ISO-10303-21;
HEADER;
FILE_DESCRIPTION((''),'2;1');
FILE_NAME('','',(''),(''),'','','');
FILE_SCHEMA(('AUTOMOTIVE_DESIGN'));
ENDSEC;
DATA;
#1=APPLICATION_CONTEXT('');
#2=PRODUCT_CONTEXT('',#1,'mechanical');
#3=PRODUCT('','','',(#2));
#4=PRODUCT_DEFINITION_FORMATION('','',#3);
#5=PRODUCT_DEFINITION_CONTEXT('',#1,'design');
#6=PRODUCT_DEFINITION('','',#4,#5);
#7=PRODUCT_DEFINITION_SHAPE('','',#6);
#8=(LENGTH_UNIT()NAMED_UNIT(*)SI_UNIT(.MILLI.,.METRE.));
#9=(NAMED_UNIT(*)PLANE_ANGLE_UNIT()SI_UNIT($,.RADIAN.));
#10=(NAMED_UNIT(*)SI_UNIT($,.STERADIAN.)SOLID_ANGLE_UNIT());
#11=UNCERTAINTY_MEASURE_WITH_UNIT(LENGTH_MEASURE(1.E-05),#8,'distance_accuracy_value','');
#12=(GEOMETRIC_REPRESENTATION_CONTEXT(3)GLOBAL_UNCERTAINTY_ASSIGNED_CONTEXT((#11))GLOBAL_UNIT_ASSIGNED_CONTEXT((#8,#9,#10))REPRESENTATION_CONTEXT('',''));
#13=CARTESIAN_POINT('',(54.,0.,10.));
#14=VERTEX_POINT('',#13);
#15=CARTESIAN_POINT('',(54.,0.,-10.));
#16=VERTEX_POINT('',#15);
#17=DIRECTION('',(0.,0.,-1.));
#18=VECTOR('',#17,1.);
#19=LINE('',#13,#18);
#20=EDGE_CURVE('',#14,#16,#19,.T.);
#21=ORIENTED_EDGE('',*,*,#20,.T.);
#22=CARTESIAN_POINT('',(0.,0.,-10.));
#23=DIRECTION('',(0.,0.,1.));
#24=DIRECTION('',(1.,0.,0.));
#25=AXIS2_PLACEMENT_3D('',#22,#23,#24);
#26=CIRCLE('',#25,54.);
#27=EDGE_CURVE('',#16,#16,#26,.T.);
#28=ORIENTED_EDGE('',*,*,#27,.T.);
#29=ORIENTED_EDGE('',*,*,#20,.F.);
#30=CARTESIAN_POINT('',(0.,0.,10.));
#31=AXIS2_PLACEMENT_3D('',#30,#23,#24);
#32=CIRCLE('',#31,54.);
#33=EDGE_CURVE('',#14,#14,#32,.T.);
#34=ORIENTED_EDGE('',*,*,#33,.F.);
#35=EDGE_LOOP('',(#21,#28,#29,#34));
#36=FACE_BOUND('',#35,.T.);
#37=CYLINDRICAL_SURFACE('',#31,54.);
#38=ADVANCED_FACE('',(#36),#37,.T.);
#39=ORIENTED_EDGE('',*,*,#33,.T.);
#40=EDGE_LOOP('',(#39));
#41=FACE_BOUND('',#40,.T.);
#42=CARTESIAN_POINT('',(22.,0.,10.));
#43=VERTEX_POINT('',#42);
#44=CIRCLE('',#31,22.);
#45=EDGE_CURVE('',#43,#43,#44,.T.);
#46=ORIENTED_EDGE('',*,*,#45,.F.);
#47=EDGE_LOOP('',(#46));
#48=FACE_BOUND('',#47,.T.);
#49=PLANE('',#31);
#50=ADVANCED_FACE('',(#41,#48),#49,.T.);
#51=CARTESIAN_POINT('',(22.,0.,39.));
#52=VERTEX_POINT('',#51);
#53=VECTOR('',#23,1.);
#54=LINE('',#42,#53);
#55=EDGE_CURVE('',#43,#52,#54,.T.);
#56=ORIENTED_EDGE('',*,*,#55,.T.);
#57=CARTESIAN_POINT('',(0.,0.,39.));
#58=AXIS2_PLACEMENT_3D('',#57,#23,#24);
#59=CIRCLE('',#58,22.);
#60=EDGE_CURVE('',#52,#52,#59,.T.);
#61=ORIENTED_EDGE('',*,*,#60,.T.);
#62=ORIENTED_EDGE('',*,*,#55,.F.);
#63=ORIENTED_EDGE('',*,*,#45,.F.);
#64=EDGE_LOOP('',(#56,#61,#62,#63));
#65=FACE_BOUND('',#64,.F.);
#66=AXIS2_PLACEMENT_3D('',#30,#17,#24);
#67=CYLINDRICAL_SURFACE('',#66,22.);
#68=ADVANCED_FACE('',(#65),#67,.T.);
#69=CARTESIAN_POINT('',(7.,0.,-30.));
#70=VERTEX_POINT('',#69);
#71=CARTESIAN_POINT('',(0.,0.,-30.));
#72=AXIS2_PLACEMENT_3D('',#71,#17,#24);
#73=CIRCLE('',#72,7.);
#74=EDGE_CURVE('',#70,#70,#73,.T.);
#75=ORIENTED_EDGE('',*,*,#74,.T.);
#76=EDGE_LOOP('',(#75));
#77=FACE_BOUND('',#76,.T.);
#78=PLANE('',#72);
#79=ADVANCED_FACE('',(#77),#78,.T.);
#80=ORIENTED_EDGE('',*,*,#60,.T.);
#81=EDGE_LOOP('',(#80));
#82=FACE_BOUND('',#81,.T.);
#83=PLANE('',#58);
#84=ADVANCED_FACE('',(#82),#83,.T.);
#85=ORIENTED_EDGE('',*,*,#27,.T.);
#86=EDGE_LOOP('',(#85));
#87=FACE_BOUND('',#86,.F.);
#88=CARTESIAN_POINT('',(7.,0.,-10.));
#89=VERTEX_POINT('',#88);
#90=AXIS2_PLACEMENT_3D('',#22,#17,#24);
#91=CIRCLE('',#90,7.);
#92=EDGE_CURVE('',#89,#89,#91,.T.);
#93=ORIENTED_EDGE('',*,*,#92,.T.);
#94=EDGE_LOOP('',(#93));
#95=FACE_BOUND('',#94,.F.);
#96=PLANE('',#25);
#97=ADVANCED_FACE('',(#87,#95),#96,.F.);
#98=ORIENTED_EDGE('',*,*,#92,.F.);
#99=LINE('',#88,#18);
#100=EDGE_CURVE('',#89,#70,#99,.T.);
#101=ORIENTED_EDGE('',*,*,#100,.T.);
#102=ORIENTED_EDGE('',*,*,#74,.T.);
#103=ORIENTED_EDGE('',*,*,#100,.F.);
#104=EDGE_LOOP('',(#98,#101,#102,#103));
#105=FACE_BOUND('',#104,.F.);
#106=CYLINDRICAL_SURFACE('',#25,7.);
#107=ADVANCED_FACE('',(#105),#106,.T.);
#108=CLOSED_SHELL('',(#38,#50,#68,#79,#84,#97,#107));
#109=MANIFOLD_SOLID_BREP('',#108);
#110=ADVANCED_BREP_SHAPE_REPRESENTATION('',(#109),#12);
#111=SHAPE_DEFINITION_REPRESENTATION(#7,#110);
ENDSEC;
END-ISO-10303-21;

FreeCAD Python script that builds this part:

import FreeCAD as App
import Part
import Sketcher
Q = App.Units.Quantity

doc = App.newDocument("Part")
body = doc.addObject("PartDesign::Body", "Body")

# Sketch on XY plane
sketch1 = doc.addObject("Sketcher::SketchObject", "Sketch")
body.addObject(sketch1)
sketch1.AttachmentSupport = (doc.XY_Plane, [""])
sketch1.MapMode = "FlatFace"
sketch1.AttachmentOffset = App.Placement(App.Vector(0, 0, 10), App.Rotation())
sketch1.addGeometry(Part.Circle(App.Vector(0, 0, 0), App.Vector(0, 0, 1), 54), False)
sketch1.addConstraint(Sketcher.Constraint("Coincident", 0, 3, -1, 1))
sketch1.addConstraint(Sketcher.Constraint("Diameter", 0, Q("108 mm")))
pad1 = doc.addObject("PartDesign::Pad", "Pad")
body.addObject(pad1)
pad1.Profile = sketch1
pad1.Length = 20
pad1.Reversed = True
body2 = doc.addObject("PartDesign::Body", "Body001")

# Sketch on XY plane
sketch2 = doc.addObject("Sketcher::SketchObject", "Sketch001")
body2.addObject(sketch2)
sketch2.AttachmentSupport = (doc.getObject("XY_Plane001"), [""])
sketch2.MapMode = "FlatFace"
sketch2.AttachmentOffset = App.Placement(App.Vector(0, 0, 10), App.Rotation())
sketch2.addGeometry(Part.Circle(App.Vector(0, 0, 0), App.Vector(0, 0, 1), 22), False)
sketch2.addConstraint(Sketcher.Constraint("Coincident", 0, 3, -1, 1))
sketch2.addConstraint(Sketcher.Constraint("Diameter", 0, Q("44 mm")))
pad2 = doc.addObject("PartDesign::Pad", "Pad001")
body2.addObject(pad2)
pad2.Profile = sketch2
pad2.Length = 29
body3 = doc.addObject("PartDesign::Body", "Body002")

# Sketch on XY plane
sketch3 = doc.addObject("Sketcher::SketchObject", "Sketch002")
body3.addObject(sketch3)
sketch3.AttachmentSupport = (doc.getObject("XY_Plane002"), [""])
sketch3.MapMode = "FlatFace"
sketch3.AttachmentOffset = App.Placement(App.Vector(0, 0, -10), App.Rotation())
sketch3.addGeometry(Part.Circle(App.Vector(0, 0, 0), App.Vector(0, 0, 1), 7), False)
sketch3.addConstraint(Sketcher.Constraint("Coincident", 0, 3, -1, 1))
sketch3.addConstraint(Sketcher.Constraint("Diameter", 0, Q("14 mm")))
pad3 = doc.addObject("PartDesign::Pad", "Pad002")
body3.addObject(pad3)
pad3.Profile = sketch3
pad3.Length = 20
pad3.Reversed = True
doc.recompute()

boolean = doc.addObject("PartDesign::Boolean", "Boolean")
body3.addObject(boolean)
boolean.Type = "Fuse"
boolean.addObjects([body])
doc.recompute()

boolean2 = doc.addObject("PartDesign::Boolean", "Boolean001")
body3.addObject(boolean2)
boolean2.Type = "Fuse"
boolean2.addObjects([body2])

doc.recompute()
